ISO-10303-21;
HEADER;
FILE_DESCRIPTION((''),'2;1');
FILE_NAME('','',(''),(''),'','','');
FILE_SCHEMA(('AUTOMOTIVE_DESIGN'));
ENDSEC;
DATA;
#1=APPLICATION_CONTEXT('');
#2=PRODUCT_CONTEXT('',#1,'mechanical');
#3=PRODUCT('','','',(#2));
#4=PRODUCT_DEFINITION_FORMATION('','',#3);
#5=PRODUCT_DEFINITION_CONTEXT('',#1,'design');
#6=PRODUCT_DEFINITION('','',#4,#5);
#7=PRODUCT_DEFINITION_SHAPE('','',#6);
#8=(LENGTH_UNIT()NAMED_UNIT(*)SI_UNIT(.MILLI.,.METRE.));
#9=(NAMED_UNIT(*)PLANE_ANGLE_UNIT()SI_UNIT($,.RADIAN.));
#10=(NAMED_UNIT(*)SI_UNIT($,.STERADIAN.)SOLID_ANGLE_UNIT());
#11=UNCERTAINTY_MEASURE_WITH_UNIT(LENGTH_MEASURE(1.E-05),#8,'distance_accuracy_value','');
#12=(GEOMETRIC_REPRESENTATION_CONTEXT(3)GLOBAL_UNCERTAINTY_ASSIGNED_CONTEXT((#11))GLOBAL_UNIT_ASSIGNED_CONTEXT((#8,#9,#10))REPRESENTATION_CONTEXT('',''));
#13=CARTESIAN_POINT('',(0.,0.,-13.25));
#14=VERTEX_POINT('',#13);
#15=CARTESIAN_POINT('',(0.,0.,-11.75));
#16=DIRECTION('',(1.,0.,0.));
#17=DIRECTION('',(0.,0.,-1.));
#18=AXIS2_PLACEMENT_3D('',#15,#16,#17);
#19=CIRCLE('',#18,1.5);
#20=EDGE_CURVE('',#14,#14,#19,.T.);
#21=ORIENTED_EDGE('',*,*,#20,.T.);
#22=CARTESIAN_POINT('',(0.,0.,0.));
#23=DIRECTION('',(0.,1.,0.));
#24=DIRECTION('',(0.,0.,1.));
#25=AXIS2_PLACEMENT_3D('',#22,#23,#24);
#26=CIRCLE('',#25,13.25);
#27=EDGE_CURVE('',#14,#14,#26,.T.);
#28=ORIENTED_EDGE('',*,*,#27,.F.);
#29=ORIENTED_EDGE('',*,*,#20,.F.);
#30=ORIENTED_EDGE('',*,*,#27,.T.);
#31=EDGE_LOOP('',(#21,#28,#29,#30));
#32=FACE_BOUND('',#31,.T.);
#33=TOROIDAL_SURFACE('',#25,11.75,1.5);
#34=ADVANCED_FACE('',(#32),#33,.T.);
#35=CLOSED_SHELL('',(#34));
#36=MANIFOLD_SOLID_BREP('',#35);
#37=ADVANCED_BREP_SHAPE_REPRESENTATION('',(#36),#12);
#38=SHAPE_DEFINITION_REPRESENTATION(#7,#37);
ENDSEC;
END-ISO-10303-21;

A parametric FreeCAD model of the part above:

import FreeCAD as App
import Part
import Sketcher
from FreeCAD import Vector

doc = App.newDocument("Part")
params = doc.addObject("Spreadsheet::Sheet", "Params")
for row, (alias, value) in enumerate([
    ("sketch1_diameter", "3 mm"),
    ("sketch2_diameter", "23.5 mm"),
], start=1):
    params.set(f"A{row}", alias)
    params.set(f"B{row}", "=" + value)
    params.setAlias(f"B{row}", alias)

body = doc.addObject("PartDesign::Body", "Body")

sketch1 = body.newObject("Sketcher::SketchObject", "Sketch")
sketch1.AttachmentSupport = (doc.getObject("YZ_Plane"), [""])
sketch1.MapMode = "FlatFace"
sketch1.addGeometry(Part.Circle(Vector(0, -11.75, 0), Vector(0, 0, 1), 1.5), False)
sketch1.addConstraint(Sketcher.Constraint("PointOnObject", 0, 3, -2))
sketch1.addConstraint(Sketcher.Constraint("Diameter", 0, 3.0))
sketch1.addConstraint(Sketcher.Constraint("DistanceY", 0, 3, -1, 1, 11.75))
sketch1.setExpression("Constraints[1]", "Params.sketch1_diameter")

sketch2 = body.newObject("Sketcher::SketchObject", "Sketch001")
sketch2.AttachmentSupport = (doc.getObject("XZ_Plane"), [""])
sketch2.MapMode = "FlatFace"
sketch2.addGeometry(Part.Circle(Vector(0, 0, 0), Vector(0, 0, 1), 11.75), False)
sketch2.addConstraint(Sketcher.Constraint("Coincident", 0, 3, -1, 1))
sketch2.addConstraint(Sketcher.Constraint("Diameter", 0, 23.5))
sketch2.setExpression("Constraints[1]", "Params.sketch2_diameter")
doc.recompute()

additivepipe = body.newObject("PartDesign::AdditivePipe", "AdditivePipe")
additivepipe.Profile = sketch1
additivepipe.Spine = (sketch2, ["Edge1"])

doc.recompute()
